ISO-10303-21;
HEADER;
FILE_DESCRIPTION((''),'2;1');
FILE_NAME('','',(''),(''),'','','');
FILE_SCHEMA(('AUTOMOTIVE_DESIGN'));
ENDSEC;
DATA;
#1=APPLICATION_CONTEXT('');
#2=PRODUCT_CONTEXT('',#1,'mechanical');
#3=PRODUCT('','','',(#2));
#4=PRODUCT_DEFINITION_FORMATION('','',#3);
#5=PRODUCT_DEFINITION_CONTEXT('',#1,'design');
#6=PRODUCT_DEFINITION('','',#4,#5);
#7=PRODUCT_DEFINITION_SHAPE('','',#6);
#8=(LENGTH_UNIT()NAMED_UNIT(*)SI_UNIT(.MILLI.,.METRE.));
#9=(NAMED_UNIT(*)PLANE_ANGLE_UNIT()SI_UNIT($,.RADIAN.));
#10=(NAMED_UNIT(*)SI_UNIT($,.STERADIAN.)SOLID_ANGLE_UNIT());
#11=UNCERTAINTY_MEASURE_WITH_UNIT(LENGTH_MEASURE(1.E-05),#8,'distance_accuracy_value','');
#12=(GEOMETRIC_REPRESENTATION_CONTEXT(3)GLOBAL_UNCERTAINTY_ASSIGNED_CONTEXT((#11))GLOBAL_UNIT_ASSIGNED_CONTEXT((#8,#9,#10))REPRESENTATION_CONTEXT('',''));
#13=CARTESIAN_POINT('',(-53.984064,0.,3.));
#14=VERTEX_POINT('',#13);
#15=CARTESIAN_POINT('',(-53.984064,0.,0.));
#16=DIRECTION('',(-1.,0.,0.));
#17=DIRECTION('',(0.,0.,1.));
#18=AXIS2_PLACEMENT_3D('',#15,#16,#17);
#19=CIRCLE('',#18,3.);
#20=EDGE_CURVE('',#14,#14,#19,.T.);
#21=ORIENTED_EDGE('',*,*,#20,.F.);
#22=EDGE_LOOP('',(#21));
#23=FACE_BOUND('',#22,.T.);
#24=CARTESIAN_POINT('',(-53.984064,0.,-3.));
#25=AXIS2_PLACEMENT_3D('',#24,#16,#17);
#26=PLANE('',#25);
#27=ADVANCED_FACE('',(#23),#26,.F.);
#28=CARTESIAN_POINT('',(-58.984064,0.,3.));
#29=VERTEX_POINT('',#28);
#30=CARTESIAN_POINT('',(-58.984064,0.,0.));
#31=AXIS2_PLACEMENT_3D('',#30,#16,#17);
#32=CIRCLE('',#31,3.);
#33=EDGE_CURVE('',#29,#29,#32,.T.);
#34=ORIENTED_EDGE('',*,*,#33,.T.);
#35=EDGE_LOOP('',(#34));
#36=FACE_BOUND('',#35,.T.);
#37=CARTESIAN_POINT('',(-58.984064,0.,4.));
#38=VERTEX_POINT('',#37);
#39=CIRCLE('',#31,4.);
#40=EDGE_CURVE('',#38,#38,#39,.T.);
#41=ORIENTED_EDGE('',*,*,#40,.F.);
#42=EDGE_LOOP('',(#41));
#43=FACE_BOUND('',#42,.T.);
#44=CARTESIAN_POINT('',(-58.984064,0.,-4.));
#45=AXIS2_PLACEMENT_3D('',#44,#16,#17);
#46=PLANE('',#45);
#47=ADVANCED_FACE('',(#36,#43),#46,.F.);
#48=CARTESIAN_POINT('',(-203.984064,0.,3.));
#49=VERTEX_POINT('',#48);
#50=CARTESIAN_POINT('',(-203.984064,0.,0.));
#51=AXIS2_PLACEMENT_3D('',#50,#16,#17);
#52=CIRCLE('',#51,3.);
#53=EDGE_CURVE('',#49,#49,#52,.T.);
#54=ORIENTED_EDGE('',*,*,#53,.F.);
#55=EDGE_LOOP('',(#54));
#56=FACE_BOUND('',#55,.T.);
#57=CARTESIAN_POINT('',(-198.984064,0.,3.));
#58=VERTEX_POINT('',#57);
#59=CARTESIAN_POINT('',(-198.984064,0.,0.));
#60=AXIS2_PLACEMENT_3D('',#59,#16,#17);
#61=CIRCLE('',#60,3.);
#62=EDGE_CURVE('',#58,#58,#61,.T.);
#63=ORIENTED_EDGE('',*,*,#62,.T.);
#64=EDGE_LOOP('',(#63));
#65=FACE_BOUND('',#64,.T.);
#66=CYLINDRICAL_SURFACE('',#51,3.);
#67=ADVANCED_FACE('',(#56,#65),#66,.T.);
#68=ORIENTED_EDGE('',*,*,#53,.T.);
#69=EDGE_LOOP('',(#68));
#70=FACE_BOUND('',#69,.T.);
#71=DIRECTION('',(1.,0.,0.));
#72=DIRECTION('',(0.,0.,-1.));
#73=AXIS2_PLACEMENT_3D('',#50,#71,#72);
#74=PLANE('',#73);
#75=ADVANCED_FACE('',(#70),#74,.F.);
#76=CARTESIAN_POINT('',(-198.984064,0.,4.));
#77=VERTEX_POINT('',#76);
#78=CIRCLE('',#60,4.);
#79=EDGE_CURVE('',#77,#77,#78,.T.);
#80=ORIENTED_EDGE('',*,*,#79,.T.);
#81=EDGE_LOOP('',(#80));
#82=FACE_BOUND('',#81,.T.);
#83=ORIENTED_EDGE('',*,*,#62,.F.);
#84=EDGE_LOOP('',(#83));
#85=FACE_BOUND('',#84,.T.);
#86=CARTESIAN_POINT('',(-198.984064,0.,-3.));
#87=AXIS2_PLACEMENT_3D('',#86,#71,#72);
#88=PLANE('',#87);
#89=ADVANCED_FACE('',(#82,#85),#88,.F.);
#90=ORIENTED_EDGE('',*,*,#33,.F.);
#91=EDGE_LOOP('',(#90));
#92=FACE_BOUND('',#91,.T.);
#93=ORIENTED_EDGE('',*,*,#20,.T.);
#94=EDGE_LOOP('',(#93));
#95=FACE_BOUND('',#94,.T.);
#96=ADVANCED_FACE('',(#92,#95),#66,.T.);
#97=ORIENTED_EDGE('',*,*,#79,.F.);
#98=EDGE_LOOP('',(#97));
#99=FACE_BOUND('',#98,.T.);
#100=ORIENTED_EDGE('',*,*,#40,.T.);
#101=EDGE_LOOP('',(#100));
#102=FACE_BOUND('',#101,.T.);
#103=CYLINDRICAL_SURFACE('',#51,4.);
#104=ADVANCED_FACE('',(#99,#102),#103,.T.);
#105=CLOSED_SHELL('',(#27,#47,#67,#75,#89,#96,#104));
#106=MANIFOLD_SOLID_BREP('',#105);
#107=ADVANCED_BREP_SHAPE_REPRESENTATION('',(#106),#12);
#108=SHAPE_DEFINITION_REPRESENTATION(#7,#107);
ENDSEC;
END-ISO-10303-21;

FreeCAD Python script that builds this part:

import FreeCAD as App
import Part
import Sketcher


def add_polygon(sketch, points):
    """Adds a closed chain of lines whose ends are joined by coincident constraints."""
    first, n = sketch.GeometryCount, len(points)
    for a, b in zip(points, points[1:] + points[:1]):
        sketch.addGeometry(Part.LineSegment(App.Vector(*a, 0), App.Vector(*b, 0)), False)
    for i in range(n):
        sketch.addConstraint(Sketcher.Constraint("Coincident", first + i, 2, first + (i + 1) % n, 1))

doc = App.newDocument("Part")
body = doc.addObject("PartDesign::Body", "Body")

# Sketch on XZ plane
sketch1 = body.newObject("Sketcher::SketchObject", "Sketch")
sketch1.AttachmentSupport = (doc.getObject("XZ_Plane"), [""])
sketch1.MapMode = "FlatFace"
add_polygon(sketch1, [(-204, -3), (-204, 0), (-54, 0), (-54, -3), (-59, -3), (-59, -4), (-199, -4), (-199, -3)])  # lines 0-7
sketch1.addConstraint(Sketcher.Constraint("Vertical", 0))
sketch1.addConstraint(Sketcher.Constraint("Horizontal", 1))
sketch1.addConstraint(Sketcher.Constraint("Vertical", 2))
sketch1.addConstraint(Sketcher.Constraint("Horizontal", 3))
sketch1.addConstraint(Sketcher.Constraint("Vertical", 4))
sketch1.addConstraint(Sketcher.Constraint("Horizontal", 5))
sketch1.addConstraint(Sketcher.Constraint("Vertical", 6))
sketch1.addConstraint(Sketcher.Constraint("Horizontal", 7))
sketch1.addConstraint(Sketcher.Constraint("PointOnObject", 0, 2, -1))
sketch1.addConstraint(Sketcher.Constraint("Horizontal", 3, 2, 6, 2))
sketch1.addConstraint(Sketcher.Constraint("Equal", 3, 7))
sketch1.addConstraint(Sketcher.Constraint("DistanceX", 1, 1, 1, 2, 150.0))
sketch1.addConstraint(Sketcher.Constraint("DistanceX", 3, 2, 3, 1, 5.0))
sketch1.addConstraint(Sketcher.Constraint("DistanceY", 0, 1, 0, 2, 3.0))
sketch1.addConstraint(Sketcher.Constraint("DistanceY", 4, 2, 4, 1, 1.0))
sketch1.addConstraint(Sketcher.Constraint("DistanceX", 0, 2, -1, 1, 203.984064))
revolution = body.newObject("PartDesign::Revolution", "Revolution")
revolution.Profile = sketch1
revolution.ReferenceAxis = (sketch1, ["H_Axis"])
revolution.Angle = 360

doc.recompute()
